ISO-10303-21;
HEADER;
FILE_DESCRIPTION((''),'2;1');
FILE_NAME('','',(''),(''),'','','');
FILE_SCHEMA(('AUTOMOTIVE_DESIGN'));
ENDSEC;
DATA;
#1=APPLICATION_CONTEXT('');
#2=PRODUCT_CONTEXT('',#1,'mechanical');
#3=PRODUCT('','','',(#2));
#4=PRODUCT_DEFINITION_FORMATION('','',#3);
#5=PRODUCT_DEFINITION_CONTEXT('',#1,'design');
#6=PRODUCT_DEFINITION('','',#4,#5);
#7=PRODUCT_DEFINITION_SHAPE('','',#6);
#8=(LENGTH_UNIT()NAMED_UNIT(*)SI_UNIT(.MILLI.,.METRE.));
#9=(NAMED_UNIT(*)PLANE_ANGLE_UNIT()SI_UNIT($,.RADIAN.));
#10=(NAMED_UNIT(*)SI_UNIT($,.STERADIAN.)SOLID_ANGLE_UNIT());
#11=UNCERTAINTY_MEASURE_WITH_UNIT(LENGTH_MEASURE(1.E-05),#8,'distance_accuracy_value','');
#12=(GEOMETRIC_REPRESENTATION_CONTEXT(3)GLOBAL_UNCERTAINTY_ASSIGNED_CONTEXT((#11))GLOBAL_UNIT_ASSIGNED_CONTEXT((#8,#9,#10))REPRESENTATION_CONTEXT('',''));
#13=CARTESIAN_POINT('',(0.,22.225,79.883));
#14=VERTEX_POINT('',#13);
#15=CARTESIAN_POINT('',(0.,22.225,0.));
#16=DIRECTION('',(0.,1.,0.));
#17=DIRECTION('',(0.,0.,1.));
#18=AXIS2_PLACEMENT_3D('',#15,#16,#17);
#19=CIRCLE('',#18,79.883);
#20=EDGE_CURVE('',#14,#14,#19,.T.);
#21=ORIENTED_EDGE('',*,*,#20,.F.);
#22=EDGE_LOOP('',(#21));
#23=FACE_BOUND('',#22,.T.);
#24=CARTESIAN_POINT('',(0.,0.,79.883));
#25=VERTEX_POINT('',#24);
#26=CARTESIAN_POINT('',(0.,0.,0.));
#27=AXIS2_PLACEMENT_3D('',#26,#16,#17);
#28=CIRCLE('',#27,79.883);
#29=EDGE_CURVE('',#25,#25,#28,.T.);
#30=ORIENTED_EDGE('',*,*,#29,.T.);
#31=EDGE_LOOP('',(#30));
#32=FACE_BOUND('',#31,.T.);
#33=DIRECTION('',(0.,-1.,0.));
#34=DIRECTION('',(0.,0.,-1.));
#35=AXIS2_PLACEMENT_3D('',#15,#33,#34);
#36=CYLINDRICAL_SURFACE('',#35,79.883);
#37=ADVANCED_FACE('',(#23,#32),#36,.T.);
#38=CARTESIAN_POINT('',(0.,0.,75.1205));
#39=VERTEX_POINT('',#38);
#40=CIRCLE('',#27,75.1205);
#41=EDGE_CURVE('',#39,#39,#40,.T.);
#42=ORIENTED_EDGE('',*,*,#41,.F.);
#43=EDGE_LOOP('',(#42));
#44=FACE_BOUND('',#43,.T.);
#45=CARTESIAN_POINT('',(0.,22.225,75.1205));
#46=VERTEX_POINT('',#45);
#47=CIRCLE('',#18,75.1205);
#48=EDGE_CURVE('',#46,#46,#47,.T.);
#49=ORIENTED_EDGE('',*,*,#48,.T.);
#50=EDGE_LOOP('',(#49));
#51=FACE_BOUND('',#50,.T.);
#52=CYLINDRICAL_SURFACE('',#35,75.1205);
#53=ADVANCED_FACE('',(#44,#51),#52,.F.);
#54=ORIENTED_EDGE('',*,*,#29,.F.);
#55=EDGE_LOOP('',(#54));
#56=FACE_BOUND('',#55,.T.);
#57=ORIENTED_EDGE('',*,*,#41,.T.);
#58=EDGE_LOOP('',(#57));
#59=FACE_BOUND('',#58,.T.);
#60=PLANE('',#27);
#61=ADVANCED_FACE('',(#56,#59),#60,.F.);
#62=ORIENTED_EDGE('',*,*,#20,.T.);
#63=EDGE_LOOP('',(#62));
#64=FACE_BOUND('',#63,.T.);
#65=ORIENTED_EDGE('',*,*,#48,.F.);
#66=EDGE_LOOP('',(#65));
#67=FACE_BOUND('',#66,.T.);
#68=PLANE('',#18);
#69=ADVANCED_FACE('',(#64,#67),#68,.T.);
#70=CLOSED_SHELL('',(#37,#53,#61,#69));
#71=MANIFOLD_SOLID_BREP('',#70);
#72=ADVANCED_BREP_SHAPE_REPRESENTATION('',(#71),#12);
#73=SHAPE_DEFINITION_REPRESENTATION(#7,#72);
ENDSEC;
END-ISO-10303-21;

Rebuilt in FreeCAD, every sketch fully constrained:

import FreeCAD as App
import Part
import Sketcher

V = App.Vector
Q = App.Units.Quantity

doc = App.newDocument("Part")
params = doc.addObject("Spreadsheet::Sheet", "Params")
for row, (alias, value) in enumerate([
    ("sketch1_diameter", "6.29 in"),
    ("sketch1_diameter2", "5.915 in"),
    ("pad1_length", "0.875 in"),
], start=1):
    params.set(f"A{row}", alias)
    params.set(f"B{row}", "=" + value)
    params.setAlias(f"B{row}", alias)

body = doc.addObject("PartDesign::Body", "Body")

# Sketch on XZ plane
sketch1 = body.newObject("Sketcher::SketchObject", "Sketch")
sketch1.AttachmentSupport = (doc.getObject("XZ_Plane"), [""])
sketch1.MapMode = "FlatFace"
sketch1.addGeometry(Part.Circle(V(0, 0, 0), V(0, 0, 1), 80), False)
sketch1.addGeometry(Part.Circle(V(0, 0, 0), V(0, 0, 1), 75), False)
sketch1.addConstraint(Sketcher.Constraint("Coincident", 0, 3, -1, 1))
sketch1.addConstraint(Sketcher.Constraint("Coincident", 1, 3, -1, 1))
sketch1.addConstraint(Sketcher.Constraint("Diameter", 0, Q("6.29 in")))
sketch1.addConstraint(Sketcher.Constraint("Diameter", 1, Q("5.915 in")))
sketch1.setExpression("Constraints[2]", "Params.sketch1_diameter")
sketch1.setExpression("Constraints[3]", "Params.sketch1_diameter2")
pad1 = body.newObject("PartDesign::Pad", "Pad")
pad1.Profile = sketch1
pad1.setExpression("Length", "Params.pad1_length")
pad1.Reversed = True

doc.recompute()
